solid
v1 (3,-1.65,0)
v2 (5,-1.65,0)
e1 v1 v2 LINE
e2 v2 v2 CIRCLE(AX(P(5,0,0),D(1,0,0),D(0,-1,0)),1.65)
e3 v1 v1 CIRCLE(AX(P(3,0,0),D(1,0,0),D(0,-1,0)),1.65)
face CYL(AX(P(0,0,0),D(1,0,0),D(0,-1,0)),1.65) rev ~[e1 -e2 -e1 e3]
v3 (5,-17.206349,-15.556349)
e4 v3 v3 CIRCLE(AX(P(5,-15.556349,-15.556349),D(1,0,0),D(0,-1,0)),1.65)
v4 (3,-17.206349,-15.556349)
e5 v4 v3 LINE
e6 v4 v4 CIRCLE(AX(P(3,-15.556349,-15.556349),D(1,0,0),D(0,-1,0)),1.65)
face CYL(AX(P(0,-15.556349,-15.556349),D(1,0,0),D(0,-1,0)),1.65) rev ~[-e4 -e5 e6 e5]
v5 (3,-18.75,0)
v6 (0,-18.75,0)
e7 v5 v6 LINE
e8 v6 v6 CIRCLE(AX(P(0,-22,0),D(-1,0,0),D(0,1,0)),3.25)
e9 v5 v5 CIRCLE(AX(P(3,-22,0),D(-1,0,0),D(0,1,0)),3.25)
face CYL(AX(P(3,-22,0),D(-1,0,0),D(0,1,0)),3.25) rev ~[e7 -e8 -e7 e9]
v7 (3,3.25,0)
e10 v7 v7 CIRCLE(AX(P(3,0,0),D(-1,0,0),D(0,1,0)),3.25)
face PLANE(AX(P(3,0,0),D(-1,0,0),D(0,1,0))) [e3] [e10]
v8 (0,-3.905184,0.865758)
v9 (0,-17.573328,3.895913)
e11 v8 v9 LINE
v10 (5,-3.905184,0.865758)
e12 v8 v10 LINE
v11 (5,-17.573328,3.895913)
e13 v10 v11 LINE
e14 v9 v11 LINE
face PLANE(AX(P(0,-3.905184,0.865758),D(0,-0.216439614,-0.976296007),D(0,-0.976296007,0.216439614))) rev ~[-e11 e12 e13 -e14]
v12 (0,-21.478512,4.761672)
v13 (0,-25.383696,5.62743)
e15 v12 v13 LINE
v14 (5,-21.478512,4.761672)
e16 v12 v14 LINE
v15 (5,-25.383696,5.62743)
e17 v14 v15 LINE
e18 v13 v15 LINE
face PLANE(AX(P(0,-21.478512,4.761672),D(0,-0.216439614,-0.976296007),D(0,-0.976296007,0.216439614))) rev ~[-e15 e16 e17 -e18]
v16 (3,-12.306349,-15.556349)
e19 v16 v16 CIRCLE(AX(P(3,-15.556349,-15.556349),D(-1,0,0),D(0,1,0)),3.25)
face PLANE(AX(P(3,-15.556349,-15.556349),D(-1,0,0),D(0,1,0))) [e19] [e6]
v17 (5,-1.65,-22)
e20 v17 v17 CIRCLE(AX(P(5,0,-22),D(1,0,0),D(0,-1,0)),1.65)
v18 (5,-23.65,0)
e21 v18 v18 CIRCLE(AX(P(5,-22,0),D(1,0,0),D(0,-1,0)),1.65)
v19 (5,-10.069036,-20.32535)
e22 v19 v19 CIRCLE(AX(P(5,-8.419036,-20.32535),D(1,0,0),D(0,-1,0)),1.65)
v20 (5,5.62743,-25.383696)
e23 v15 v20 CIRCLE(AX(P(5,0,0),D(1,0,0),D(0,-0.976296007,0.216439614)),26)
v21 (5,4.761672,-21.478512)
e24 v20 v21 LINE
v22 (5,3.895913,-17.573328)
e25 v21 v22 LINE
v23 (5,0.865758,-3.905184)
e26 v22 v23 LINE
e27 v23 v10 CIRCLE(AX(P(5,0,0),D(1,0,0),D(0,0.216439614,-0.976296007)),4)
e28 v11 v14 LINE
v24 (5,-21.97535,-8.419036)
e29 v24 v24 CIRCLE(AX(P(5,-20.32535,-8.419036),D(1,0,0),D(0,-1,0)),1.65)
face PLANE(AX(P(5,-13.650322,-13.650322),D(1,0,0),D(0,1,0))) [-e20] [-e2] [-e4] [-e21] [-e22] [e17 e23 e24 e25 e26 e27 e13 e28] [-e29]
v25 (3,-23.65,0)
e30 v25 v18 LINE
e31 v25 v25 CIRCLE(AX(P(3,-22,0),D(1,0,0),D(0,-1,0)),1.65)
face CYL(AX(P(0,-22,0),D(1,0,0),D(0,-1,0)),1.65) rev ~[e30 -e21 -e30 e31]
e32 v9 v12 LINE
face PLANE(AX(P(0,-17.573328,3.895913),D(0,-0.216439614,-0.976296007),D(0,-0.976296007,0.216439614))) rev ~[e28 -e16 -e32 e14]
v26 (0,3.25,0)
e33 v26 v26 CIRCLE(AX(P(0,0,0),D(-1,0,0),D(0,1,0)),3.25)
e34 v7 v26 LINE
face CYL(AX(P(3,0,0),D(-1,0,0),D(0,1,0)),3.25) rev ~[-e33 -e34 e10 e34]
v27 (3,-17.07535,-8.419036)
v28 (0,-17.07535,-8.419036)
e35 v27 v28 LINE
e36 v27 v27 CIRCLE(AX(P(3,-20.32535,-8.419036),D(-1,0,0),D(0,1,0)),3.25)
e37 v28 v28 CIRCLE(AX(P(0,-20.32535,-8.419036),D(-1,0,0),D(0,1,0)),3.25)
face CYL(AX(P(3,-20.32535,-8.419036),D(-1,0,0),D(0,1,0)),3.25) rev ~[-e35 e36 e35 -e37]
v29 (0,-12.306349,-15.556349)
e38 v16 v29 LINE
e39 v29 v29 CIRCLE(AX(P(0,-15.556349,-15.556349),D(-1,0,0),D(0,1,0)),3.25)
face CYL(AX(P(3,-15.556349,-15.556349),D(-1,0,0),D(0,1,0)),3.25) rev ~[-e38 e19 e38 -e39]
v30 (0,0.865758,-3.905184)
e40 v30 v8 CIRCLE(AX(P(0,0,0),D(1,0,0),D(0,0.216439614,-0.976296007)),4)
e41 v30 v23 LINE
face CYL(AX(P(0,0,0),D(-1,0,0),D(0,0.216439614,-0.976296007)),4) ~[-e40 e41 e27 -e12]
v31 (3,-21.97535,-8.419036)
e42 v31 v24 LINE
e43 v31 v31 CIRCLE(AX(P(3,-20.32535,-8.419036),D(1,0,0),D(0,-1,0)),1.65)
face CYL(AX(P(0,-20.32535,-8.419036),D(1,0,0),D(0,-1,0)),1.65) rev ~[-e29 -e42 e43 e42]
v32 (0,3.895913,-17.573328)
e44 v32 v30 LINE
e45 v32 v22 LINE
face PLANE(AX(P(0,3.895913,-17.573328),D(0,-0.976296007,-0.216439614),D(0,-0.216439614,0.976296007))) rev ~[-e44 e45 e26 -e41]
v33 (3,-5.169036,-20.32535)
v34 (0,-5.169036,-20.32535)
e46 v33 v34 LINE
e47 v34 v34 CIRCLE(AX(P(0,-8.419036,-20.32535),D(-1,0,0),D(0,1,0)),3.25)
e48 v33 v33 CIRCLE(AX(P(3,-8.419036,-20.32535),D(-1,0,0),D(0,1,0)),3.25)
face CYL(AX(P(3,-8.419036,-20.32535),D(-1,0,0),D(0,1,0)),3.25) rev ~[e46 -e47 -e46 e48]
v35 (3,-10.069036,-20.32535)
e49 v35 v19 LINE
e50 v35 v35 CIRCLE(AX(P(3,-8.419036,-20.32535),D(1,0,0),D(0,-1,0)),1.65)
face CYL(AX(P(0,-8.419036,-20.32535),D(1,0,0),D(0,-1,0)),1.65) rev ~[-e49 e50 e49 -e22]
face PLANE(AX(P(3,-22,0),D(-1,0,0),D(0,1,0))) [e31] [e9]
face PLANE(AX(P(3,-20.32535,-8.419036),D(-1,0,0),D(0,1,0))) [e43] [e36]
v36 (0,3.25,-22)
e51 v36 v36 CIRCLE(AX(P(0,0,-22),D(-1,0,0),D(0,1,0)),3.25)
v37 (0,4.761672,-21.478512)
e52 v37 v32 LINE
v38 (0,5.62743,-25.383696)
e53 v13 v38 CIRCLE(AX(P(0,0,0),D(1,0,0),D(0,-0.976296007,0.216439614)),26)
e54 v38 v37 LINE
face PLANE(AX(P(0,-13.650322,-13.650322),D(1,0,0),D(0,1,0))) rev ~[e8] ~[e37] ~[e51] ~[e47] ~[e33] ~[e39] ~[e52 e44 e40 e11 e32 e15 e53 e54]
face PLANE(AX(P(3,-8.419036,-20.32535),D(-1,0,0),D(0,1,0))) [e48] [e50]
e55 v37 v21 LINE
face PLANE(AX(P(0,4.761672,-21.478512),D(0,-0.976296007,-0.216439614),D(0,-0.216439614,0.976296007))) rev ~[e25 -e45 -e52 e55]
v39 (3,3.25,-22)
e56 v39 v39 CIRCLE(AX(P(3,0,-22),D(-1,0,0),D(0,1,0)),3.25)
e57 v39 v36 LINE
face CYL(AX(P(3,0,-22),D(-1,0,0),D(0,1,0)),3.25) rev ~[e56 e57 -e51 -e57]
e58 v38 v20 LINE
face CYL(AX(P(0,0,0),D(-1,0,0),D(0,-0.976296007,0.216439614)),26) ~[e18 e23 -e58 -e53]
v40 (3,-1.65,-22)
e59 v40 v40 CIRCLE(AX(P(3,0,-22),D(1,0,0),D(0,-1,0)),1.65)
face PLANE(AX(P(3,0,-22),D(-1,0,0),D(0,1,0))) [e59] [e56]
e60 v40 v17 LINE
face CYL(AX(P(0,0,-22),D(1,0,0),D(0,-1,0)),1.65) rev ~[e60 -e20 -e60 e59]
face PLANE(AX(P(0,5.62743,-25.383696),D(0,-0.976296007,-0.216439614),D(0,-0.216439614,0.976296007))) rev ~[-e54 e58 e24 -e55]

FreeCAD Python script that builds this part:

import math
import FreeCAD as App
import Part
import Sketcher
from FreeCAD import Vector
Q = App.Units.Quantity

doc = App.newDocument("Part")
body = doc.addObject("PartDesign::Body", "Body")

sketch1 = body.newObject("Sketcher::SketchObject", "Sketch")
sketch1.AttachmentSupport = (doc.getObject("YZ_Plane"), [""])
sketch1.MapMode = "FlatFace"
sketch1.addGeometry([
    Part.LineSegment(Vector(-21.478512, 4.761672, 0), Vector(-25.383696, 5.62743, 0)),
    Part.ArcOfCircle(Part.Circle(Vector(0, 0, 0), Vector(0, 0, 1), 26), math.radians(167.5), math.radians(282.5)),
    Part.LineSegment(Vector(5.62743, -25.383696, 0), Vector(4.761672, -21.478512, 0)),
    Part.LineSegment(Vector(4.761672, -21.478512, 0), Vector(3.895913, -17.573328, 0)),
    Part.LineSegment(Vector(3.895913, -17.573328, 0), Vector(0.865758, -3.905184, 0)),
    Part.ArcOfCircle(Part.Circle(Vector(0, 0, 0), Vector(0, 0, 1), 4), math.radians(-77.5), math.radians(167.5)),
    Part.LineSegment(Vector(-3.905184, 0.865758, 0), Vector(-17.573328, 3.895913, 0)),
    Part.LineSegment(Vector(-17.573328, 3.895913, 0), Vector(-21.478512, 4.761672, 0)),
], False)
sketch1.addConstraint([
    Sketcher.Constraint("Coincident", 0, 2, 1, 1),
    Sketcher.Constraint("Coincident", 1, 2, 2, 1),
    Sketcher.Constraint("Coincident", 2, 2, 3, 1),
    Sketcher.Constraint("Coincident", 3, 2, 4, 1),
    Sketcher.Constraint("Coincident", 4, 2, 5, 1),
    Sketcher.Constraint("Coincident", 5, 2, 6, 1),
    Sketcher.Constraint("Coincident", 6, 2, 7, 1),
    Sketcher.Constraint("Coincident", 7, 2, 0, 1),
    Sketcher.Constraint("Coincident", 1, 3, -1, 1),
    Sketcher.Constraint("Coincident", 5, 3, -1, 1),
    Sketcher.Constraint("Parallel", 2, 3),
    Sketcher.Constraint("Parallel", 3, 4),
    Sketcher.Constraint("Parallel", 0, 6),
    Sketcher.Constraint("Parallel", 6, 7),
    Sketcher.Constraint("Equal", 0, 2),
    Sketcher.Constraint("Equal", 2, 3),
    Sketcher.Constraint("Equal", 4, 6),
    Sketcher.Constraint("Radius", 1, Q("26 mm")),
    Sketcher.Constraint("Radius", 5, Q("4 mm")),
    Sketcher.Constraint("Distance", 0, Q("4 mm")),
    Sketcher.Constraint("Angle", 0, Q("167.5 deg")),
    Sketcher.Constraint("Angle", 2, Q("102.5 deg")),
    Sketcher.Constraint("DistanceY", -1, 1, 0, 2, Q("5.62743 mm")),
    Sketcher.Constraint("DistanceX", -1, 1, 1, 2, Q("5.62743 mm")),
])
pad1 = body.newObject("PartDesign::Pad", "Pad")
pad1.Profile = sketch1
pad1.Length = 5

sketch2 = body.newObject("Sketcher::SketchObject", "Sketch001")
sketch2.AttachmentSupport = (doc.getObject("YZ_Plane"), [""])
sketch2.MapMode = "FlatFace"
sketch2.addGeometry([
    Part.Circle(Vector(-22, 0, 0), Vector(0, 0, 1), 1.65),
    Part.Circle(Vector(-20.32535, -8.419036, 0), Vector(0, 0, 1), 1.65),
    Part.Circle(Vector(-15.556349, -15.556349, 0), Vector(0, 0, 1), 1.65),
    Part.Circle(Vector(-8.419036, -20.32535, 0), Vector(0, 0, 1), 1.65),
    Part.Circle(Vector(0, -22, 0), Vector(0, 0, 1), 1.65),
    Part.Circle(Vector(0, 0, 0), Vector(0, 0, 1), 1.65),
], False)
sketch2.addConstraint([
    Sketcher.Constraint("Coincident", 5, 3, -1, 1),
    Sketcher.Constraint("Equal", 0, 1),
    Sketcher.Constraint("Equal", 1, 2),
    Sketcher.Constraint("Equal", 2, 3),
    Sketcher.Constraint("Equal", 3, 4),
    Sketcher.Constraint("Equal", 4, 5),
    Sketcher.Constraint("PointOnObject", 0, 3, -1),
    Sketcher.Constraint("PointOnObject", 4, 3, -2),
    Sketcher.Constraint("Diameter", 0, Q("3.3 mm")),
    Sketcher.Constraint("DistanceX", 0, 3, -1, 1, Q("22 mm")),
    Sketcher.Constraint("DistanceY", 4, 3, -1, 1, Q("22 mm")),
    Sketcher.Constraint("DistanceX", 1, 3, 2, 3, Q("4.769001 mm")),
    Sketcher.Constraint("DistanceY", 3, 3, 2, 3, Q("4.769001 mm")),
    Sketcher.Constraint("DistanceX", 1, 3, -1, 1, Q("20.32535 mm")),
    Sketcher.Constraint("DistanceY", 2, 3, -1, 1, Q("15.556349 mm")),
    Sketcher.Constraint("DistanceY", 1, 3, -1, 1, Q("8.419036 mm")),
    Sketcher.Constraint("DistanceX", 3, 3, -1, 1, Q("8.419036 mm")),
])
doc.recompute()
hole = body.newObject("PartDesign::Hole", "Hole")
hole.Profile = sketch2
hole.ThreadType = "None"
hole.Diameter = 3.3
hole.DepthType = "ThroughAll"
hole.HoleCutType = "Counterbore"
hole.HoleCutDiameter = 6.5
hole.HoleCutDepth = 3
hole.Reversed = True

doc.recompute()
